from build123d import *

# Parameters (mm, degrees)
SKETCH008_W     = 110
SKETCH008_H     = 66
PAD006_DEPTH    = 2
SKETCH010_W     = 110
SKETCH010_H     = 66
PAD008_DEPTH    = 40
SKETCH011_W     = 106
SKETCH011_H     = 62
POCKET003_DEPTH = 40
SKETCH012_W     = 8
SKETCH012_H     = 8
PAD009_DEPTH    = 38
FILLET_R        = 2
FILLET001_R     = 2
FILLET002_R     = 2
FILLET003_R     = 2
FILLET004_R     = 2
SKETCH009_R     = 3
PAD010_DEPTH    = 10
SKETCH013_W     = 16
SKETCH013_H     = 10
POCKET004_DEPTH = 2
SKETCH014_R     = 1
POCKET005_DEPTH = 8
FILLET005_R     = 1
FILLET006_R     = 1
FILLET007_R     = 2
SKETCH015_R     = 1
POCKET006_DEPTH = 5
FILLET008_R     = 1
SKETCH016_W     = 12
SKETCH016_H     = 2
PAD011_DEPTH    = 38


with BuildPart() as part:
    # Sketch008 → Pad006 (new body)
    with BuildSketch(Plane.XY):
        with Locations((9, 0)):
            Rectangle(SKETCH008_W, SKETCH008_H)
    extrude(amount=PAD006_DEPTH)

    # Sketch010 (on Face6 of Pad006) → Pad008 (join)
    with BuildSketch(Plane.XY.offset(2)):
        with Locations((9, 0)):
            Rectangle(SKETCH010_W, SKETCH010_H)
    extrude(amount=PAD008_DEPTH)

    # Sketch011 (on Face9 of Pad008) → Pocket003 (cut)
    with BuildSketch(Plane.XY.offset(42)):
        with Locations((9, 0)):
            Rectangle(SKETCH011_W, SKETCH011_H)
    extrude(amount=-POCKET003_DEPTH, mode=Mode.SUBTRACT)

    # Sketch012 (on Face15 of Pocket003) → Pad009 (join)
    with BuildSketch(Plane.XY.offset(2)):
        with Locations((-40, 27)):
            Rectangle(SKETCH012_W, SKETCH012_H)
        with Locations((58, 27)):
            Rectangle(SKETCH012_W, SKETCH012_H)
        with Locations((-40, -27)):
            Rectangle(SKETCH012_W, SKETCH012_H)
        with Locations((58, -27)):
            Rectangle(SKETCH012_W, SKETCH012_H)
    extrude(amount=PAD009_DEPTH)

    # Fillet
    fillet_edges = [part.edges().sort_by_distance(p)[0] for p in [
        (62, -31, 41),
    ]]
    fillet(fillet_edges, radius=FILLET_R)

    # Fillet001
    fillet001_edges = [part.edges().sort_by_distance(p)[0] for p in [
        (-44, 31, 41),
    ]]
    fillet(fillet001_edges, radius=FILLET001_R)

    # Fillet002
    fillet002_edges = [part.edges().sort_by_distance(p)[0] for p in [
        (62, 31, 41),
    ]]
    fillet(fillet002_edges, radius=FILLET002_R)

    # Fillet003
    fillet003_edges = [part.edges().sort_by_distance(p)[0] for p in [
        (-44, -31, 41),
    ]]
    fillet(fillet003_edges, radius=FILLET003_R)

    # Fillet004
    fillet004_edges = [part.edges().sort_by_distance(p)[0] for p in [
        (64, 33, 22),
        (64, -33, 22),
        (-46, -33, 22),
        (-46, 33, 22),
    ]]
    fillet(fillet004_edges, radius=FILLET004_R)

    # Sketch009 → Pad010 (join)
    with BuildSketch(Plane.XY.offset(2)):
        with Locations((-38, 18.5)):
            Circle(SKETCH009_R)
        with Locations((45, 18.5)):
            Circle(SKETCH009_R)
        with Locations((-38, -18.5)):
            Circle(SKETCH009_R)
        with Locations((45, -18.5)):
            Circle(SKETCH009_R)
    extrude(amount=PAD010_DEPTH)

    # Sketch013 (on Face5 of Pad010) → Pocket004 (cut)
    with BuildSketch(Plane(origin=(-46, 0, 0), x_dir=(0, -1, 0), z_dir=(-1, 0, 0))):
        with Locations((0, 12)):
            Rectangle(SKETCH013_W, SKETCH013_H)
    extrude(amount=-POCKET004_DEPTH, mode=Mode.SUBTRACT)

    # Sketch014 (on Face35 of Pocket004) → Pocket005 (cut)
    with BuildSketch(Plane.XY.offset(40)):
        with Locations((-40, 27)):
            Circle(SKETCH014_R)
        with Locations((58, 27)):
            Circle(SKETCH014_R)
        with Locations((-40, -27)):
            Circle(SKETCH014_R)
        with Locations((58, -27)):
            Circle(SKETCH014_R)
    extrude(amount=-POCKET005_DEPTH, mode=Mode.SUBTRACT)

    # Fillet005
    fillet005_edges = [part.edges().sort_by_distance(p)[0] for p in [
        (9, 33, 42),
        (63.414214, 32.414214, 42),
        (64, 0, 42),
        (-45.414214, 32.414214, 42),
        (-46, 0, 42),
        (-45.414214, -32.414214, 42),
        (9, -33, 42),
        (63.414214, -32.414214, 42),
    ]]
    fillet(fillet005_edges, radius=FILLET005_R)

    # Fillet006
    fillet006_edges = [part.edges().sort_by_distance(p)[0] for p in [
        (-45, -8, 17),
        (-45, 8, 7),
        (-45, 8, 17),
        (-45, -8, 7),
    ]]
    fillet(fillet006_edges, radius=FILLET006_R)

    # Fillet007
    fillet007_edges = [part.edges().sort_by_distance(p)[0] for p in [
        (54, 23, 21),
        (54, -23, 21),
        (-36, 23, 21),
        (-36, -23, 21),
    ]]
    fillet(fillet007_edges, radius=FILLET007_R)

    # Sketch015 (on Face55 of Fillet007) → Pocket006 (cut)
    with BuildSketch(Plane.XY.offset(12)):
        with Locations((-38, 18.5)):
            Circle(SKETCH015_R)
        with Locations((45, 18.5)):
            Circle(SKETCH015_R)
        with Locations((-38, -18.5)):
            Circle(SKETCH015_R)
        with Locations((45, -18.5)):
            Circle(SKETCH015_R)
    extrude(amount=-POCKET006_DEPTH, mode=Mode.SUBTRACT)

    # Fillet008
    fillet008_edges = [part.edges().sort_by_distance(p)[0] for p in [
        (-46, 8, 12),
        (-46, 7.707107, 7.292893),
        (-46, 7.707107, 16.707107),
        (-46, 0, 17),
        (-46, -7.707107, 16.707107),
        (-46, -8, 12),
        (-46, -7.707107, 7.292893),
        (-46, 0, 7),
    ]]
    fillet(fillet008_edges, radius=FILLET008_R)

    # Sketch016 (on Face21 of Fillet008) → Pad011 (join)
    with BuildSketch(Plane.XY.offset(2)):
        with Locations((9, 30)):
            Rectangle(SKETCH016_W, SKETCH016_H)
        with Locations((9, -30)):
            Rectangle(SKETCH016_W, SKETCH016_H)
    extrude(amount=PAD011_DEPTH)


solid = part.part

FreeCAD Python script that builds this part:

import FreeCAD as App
import Part
import Sketcher


def edges_at(feature, points):
    """Names of the edges that pass closest to the given points."""
    edges = feature.Shape.Edges
    near = lambda p: min(range(len(edges)), key=lambda i: edges[i].distToShape(Part.Vertex(*p))[0])
    return sorted({f"Edge{near(p) + 1}" for p in points})


def add_polygon(sketch, points):
    """Adds a closed chain of lines whose ends are joined by coincident constraints."""
    first, n = sketch.GeometryCount, len(points)
    for a, b in zip(points, points[1:] + points[:1]):
        sketch.addGeometry(Part.LineSegment(App.Vector(*a, 0), App.Vector(*b, 0)), False)
    for i in range(n):
        sketch.addConstraint(Sketcher.Constraint("Coincident", first + i, 2, first + (i + 1) % n, 1))

doc = App.newDocument("Part")
body = doc.addObject("PartDesign::Body", "Body")

sketch1 = body.newObject("Sketcher::SketchObject", "Sketch")
sketch1.AttachmentSupport = (doc.getObject("XY_Plane"), [""])
sketch1.MapMode = "FlatFace"
add_polygon(sketch1, [(-46, 33), (-46, -33), (64, -33), (64, 33)])
sketch1.addConstraint([
    Sketcher.Constraint("Vertical", 0),
    Sketcher.Constraint("Horizontal", 1),
    Sketcher.Constraint("Vertical", 2),
    Sketcher.Constraint("Horizontal", 3),
    Sketcher.Constraint("DistanceX", 1, 1, 1, 2, 110.0),
    Sketcher.Constraint("DistanceY", 0, 2, 0, 1, 66.0),
    Sketcher.Constraint("DistanceX", 0, 2, -1, 1, 46.0),
    Sketcher.Constraint("DistanceY", 0, 2, -1, 1, 33.0),
])
pad1 = body.newObject("PartDesign::Pad", "Pad")
pad1.Profile = sketch1
pad1.Length = 2

sketch2 = body.newObject("Sketcher::SketchObject", "Sketch001")
sketch2.AttachmentSupport = (doc.getObject("XY_Plane"), [""])
sketch2.MapMode = "FlatFace"
sketch2.AttachmentOffset = App.Placement(App.Vector(0, 0, 2), App.Rotation())
add_polygon(sketch2, [(-46, 33), (-46, -33), (64, -33), (64, 33)])
sketch2.addConstraint([
    Sketcher.Constraint("Vertical", 0),
    Sketcher.Constraint("Horizontal", 1),
    Sketcher.Constraint("Vertical", 2),
    Sketcher.Constraint("Horizontal", 3),
    Sketcher.Constraint("DistanceX", 1, 1, 1, 2, 110.0),
    Sketcher.Constraint("DistanceY", 0, 2, 0, 1, 66.0),
    Sketcher.Constraint("DistanceX", 0, 2, -1, 1, 46.0),
    Sketcher.Constraint("DistanceY", 0, 2, -1, 1, 33.0),
])
pad2 = body.newObject("PartDesign::Pad", "Pad001")
pad2.Profile = sketch2
pad2.Length = 40

sketch3 = body.newObject("Sketcher::SketchObject", "Sketch002")
sketch3.AttachmentSupport = (doc.getObject("XY_Plane"), [""])
sketch3.MapMode = "FlatFace"
sketch3.AttachmentOffset = App.Placement(App.Vector(0, 0, 42), App.Rotation())
add_polygon(sketch3, [(-44, 31), (-44, -31), (62, -31), (62, 31)])
sketch3.addConstraint([
    Sketcher.Constraint("Vertical", 0),
    Sketcher.Constraint("Horizontal", 1),
    Sketcher.Constraint("Vertical", 2),
    Sketcher.Constraint("Horizontal", 3),
    Sketcher.Constraint("DistanceX", 1, 1, 1, 2, 106.0),
    Sketcher.Constraint("DistanceY", 0, 2, 0, 1, 62.0),
    Sketcher.Constraint("DistanceX", 0, 2, -1, 1, 44.0),
    Sketcher.Constraint("DistanceY", 0, 2, -1, 1, 31.0),
])
pocket1 = body.newObject("PartDesign::Pocket", "Pocket")
pocket1.Profile = sketch3
pocket1.Length = 40

sketch4 = body.newObject("Sketcher::SketchObject", "Sketch003")
sketch4.AttachmentSupport = (doc.getObject("XY_Plane"), [""])
sketch4.MapMode = "FlatFace"
sketch4.AttachmentOffset = App.Placement(App.Vector(0, 0, 2), App.Rotation())
add_polygon(sketch4, [(-44, 31), (-44, 23), (-36, 23), (-36, 31)])
add_polygon(sketch4, [(54, 31), (54, 23), (62, 23), (62, 31)])
add_polygon(sketch4, [(-44, -23), (-44, -31), (-36, -31), (-36, -23)])
add_polygon(sketch4, [(54, -23), (54, -31), (62, -31), (62, -23)])
sketch4.addConstraint([
    Sketcher.Constraint("Vertical", 0),
    Sketcher.Constraint("Horizontal", 1),
    Sketcher.Constraint("Vertical", 2),
    Sketcher.Constraint("Horizontal", 3),
    Sketcher.Constraint("Vertical", 4),
    Sketcher.Constraint("Horizontal", 5),
    Sketcher.Constraint("Vertical", 6),
    Sketcher.Constraint("Horizontal", 7),
    Sketcher.Constraint("Vertical", 8),
    Sketcher.Constraint("Horizontal", 9),
    Sketcher.Constraint("Vertical", 10),
    Sketcher.Constraint("Horizontal", 11),
    Sketcher.Constraint("Vertical", 12),
    Sketcher.Constraint("Horizontal", 13),
    Sketcher.Constraint("Vertical", 14),
    Sketcher.Constraint("Horizontal", 15),
    Sketcher.Constraint("Symmetric", 3, 2, 8, 2, -1),
    Sketcher.Constraint("Symmetric", 1, 2, 10, 2, -1),
    Sketcher.Constraint("Symmetric", 7, 2, 12, 2, -1),
    Sketcher.Constraint("Symmetric", 5, 2, 14, 2, -1),
    Sketcher.Constraint("Horizontal", 1, 2, 4, 2),
    Sketcher.Constraint("Horizontal", 3, 2, 6, 2),
    Sketcher.Constraint("Equal", 3, 5),
    Sketcher.Constraint("Equal", 15, 0),
    Sketcher.Constraint("DistanceX", 1, 1, 1, 2, 8.0),
    Sketcher.Constraint("DistanceX", 0, 2, -1, 1, 44.0),
    Sketcher.Constraint("DistanceY", -1, 1, 0, 2, 23.0),
    Sketcher.Constraint("DistanceX", -1, 1, 4, 2, 54.0),
])
pad3 = body.newObject("PartDesign::Pad", "Pad002")
pad3.Profile = sketch4
pad3.Length = 38
doc.recompute()

fillet = body.newObject("PartDesign::Fillet", "Fillet")
fillet.Base = (pad3, edges_at(pad3, [(62, -31, 41)]))
fillet.Radius = 2
doc.recompute()

fillet2 = body.newObject("PartDesign::Fillet", "Fillet001")
fillet2.Base = (fillet, edges_at(fillet, [(-44, 31, 41)]))
fillet2.Radius = 2
doc.recompute()

fillet3 = body.newObject("PartDesign::Fillet", "Fillet002")
fillet3.Base = (fillet2, edges_at(fillet2, [(62, 31, 41)]))
fillet3.Radius = 2
doc.recompute()

fillet4 = body.newObject("PartDesign::Fillet", "Fillet003")
fillet4.Base = (fillet3, edges_at(fillet3, [(-44, -31, 41)]))
fillet4.Radius = 2
doc.recompute()

fillet5 = body.newObject("PartDesign::Fillet", "Fillet004")
fillet5.Base = (fillet4, edges_at(fillet4, [
    (64, 33, 21),
    (64, -33, 21),
    (-46, -33, 21),
    (-46, 33, 21),
]))
fillet5.Radius = 2

sketch5 = body.newObject("Sketcher::SketchObject", "Sketch004")
sketch5.AttachmentSupport = (doc.getObject("XY_Plane"), [""])
sketch5.MapMode = "FlatFace"
sketch5.AttachmentOffset = App.Placement(App.Vector(0, 0, 2), App.Rotation())
sketch5.addGeometry([
    Part.Circle(App.Vector(-38, 18.5, 0), App.Vector(0, 0, 1), 3),
    Part.Circle(App.Vector(45, 18.5, 0), App.Vector(0, 0, 1), 3),
    Part.Circle(App.Vector(-38, -18.5, 0), App.Vector(0, 0, 1), 3),
    Part.Circle(App.Vector(45, -18.5, 0), App.Vector(0, 0, 1), 3),
], False)
sketch5.addConstraint([
    Sketcher.Constraint("Equal", 0, 1),
    Sketcher.Constraint("Equal", 1, 2),
    Sketcher.Constraint("Equal", 2, 3),
    Sketcher.Constraint("Symmetric", 0, 3, 2, 3, -1),
    Sketcher.Constraint("Symmetric", 1, 3, 3, 3, -1),
    Sketcher.Constraint("Horizontal", 0, 3, 1, 3),
    Sketcher.Constraint("Diameter", 0, 6.0),
    Sketcher.Constraint("DistanceX", 0, 3, -1, 1, 38.0),
    Sketcher.Constraint("DistanceX", -1, 1, 1, 3, 45.0),
    Sketcher.Constraint("DistanceY", 2, 3, 0, 3, 37.0),
])
pad4 = body.newObject("PartDesign::Pad", "Pad003")
pad4.Profile = sketch5
pad4.Length = 10

sketch6 = body.newObject("Sketcher::SketchObject", "Sketch005")
sketch6.AttachmentSupport = (doc.getObject("YZ_Plane"), [""])
sketch6.MapMode = "FlatFace"
sketch6.AttachmentOffset = App.Placement(App.Vector(0, 0, -46), App.Rotation())
add_polygon(sketch6, [(8, 17), (8, 7), (-8, 7), (-8, 17)])
sketch6.addConstraint([
    Sketcher.Constraint("Vertical", 0),
    Sketcher.Constraint("Horizontal", 1),
    Sketcher.Constraint("Vertical", 2),
    Sketcher.Constraint("Horizontal", 3),
    Sketcher.Constraint("DistanceX", 1, 2, 1, 1, 16.0),
    Sketcher.Constraint("DistanceY", 0, 2, 0, 1, 10.0),
    Sketcher.Constraint("DistanceX", -1, 1, 0, 2, 8.0),
    Sketcher.Constraint("DistanceY", -1, 1, 0, 2, 7.0),
])
pocket2 = body.newObject("PartDesign::Pocket", "Pocket001")
pocket2.Profile = sketch6
pocket2.Length = 2
pocket2.Reversed = True

sketch7 = body.newObject("Sketcher::SketchObject", "Sketch006")
sketch7.AttachmentSupport = (doc.getObject("XY_Plane"), [""])
sketch7.MapMode = "FlatFace"
sketch7.AttachmentOffset = App.Placement(App.Vector(0, 0, 40), App.Rotation())
sketch7.addGeometry([
    Part.Circle(App.Vector(-40, 27, 0), App.Vector(0, 0, 1), 1),
    Part.Circle(App.Vector(58, 27, 0), App.Vector(0, 0, 1), 1),
    Part.Circle(App.Vector(-40, -27, 0), App.Vector(0, 0, 1), 1),
    Part.Circle(App.Vector(58, -27, 0), App.Vector(0, 0, 1), 1),
], False)
sketch7.addConstraint([
    Sketcher.Constraint("Equal", 0, 1),
    Sketcher.Constraint("Equal", 1, 2),
    Sketcher.Constraint("Equal", 2, 3),
    Sketcher.Constraint("Symmetric", 0, 3, 2, 3, -1),
    Sketcher.Constraint("Symmetric", 1, 3, 3, 3, -1),
    Sketcher.Constraint("Horizontal", 0, 3, 1, 3),
    Sketcher.Constraint("Diameter", 0, 2.0),
    Sketcher.Constraint("DistanceX", 0, 3, -1, 1, 40.0),
    Sketcher.Constraint("DistanceY", -1, 1, 0, 3, 27.0),
    Sketcher.Constraint("DistanceX", -1, 1, 1, 3, 58.0),
])
pocket3 = body.newObject("PartDesign::Pocket", "Pocket002")
pocket3.Profile = sketch7
pocket3.Length = 8
doc.recompute()

fillet6 = body.newObject("PartDesign::Fillet", "Fillet005")
fillet6.Base = (pocket3, edges_at(pocket3, [
    (9, 33, 42),
    (63.414, 32.414, 42),
    (64, 0, 42),
    (-45.414, 32.414, 42),
    (-46, 0, 42),
    (-45.414, -32.414, 42),
    (9, -33, 42),
    (63.414, -32.414, 42),
]))
fillet6.Radius = 1
doc.recompute()

fillet7 = body.newObject("PartDesign::Fillet", "Fillet006")
fillet7.Base = (fillet6, edges_at(fillet6, [
    (-45, -8, 17),
    (-45, 8, 7),
    (-45, 8, 17),
    (-45, -8, 7),
]))
fillet7.Radius = 1
doc.recompute()

fillet8 = body.newObject("PartDesign::Fillet", "Fillet007")
fillet8.Base = (fillet7, edges_at(fillet7, [
    (54, 23, 21),
    (54, -23, 21),
    (-36, 23, 21),
    (-36, -23, 21),
]))
fillet8.Radius = 2

sketch8 = body.newObject("Sketcher::SketchObject", "Sketch007")
sketch8.AttachmentSupport = (doc.getObject("XY_Plane"), [""])
sketch8.MapMode = "FlatFace"
sketch8.AttachmentOffset = App.Placement(App.Vector(0, 0, 12), App.Rotation())
sketch8.addGeometry([
    Part.Circle(App.Vector(-38, 18.5, 0), App.Vector(0, 0, 1), 1),
    Part.Circle(App.Vector(45, 18.5, 0), App.Vector(0, 0, 1), 1),
    Part.Circle(App.Vector(-38, -18.5, 0), App.Vector(0, 0, 1), 1),
    Part.Circle(App.Vector(45, -18.5, 0), App.Vector(0, 0, 1), 1),
], False)
sketch8.addConstraint([
    Sketcher.Constraint("Equal", 0, 1),
    Sketcher.Constraint("Equal", 1, 2),
    Sketcher.Constraint("Equal", 2, 3),
    Sketcher.Constraint("Symmetric", 0, 3, 2, 3, -1),
    Sketcher.Constraint("Symmetric", 1, 3, 3, 3, -1),
    Sketcher.Constraint("Horizontal", 0, 3, 1, 3),
    Sketcher.Constraint("Diameter", 0, 2.0),
    Sketcher.Constraint("DistanceX", 0, 3, -1, 1, 38.0),
    Sketcher.Constraint("DistanceX", -1, 1, 1, 3, 45.0),
    Sketcher.Constraint("DistanceY", 2, 3, 0, 3, 37.0),
])
pocket4 = body.newObject("PartDesign::Pocket", "Pocket003")
pocket4.Profile = sketch8
pocket4.Length = 5
doc.recompute()

fillet9 = body.newObject("PartDesign::Fillet", "Fillet008")
fillet9.Base = (pocket4, edges_at(pocket4, [
    (-46, 8, 12),
    (-46, 7.707, 7.293),
    (-46, 7.707, 16.707),
    (-46, 0, 17),
    (-46, -7.707, 16.707),
    (-46, -8, 12),
    (-46, -7.707, 7.293),
    (-46, 0, 7),
]))
fillet9.Radius = 1

sketch9 = body.newObject("Sketcher::SketchObject", "Sketch008")
sketch9.AttachmentSupport = (doc.getObject("XY_Plane"), [""])
sketch9.MapMode = "FlatFace"
sketch9.AttachmentOffset = App.Placement(App.Vector(0, 0, 2), App.Rotation())
add_polygon(sketch9, [(3, 31), (3, 29), (15, 29), (15, 31)])
add_polygon(sketch9, [(3, -29), (3, -31), (15, -31), (15, -29)])
sketch9.addConstraint([
    Sketcher.Constraint("Vertical", 0),
    Sketcher.Constraint("Horizontal", 1),
    Sketcher.Constraint("Vertical", 2),
    Sketcher.Constraint("Horizontal", 3),
    Sketcher.Constraint("Vertical", 4),
    Sketcher.Constraint("Horizontal", 5),
    Sketcher.Constraint("Vertical", 6),
    Sketcher.Constraint("Horizontal", 7),
    Sketcher.Constraint("Symmetric", 3, 2, 4, 2, -1),
    Sketcher.Constraint("Symmetric", 1, 2, 6, 2, -1),
    Sketcher.Constraint("DistanceX", 1, 1, 1, 2, 12.0),
    Sketcher.Constraint("DistanceY", 0, 2, 0, 1, 2.0),
    Sketcher.Constraint("DistanceX", -1, 1, 0, 2, 3.0),
    Sketcher.Constraint("DistanceY", -1, 1, 0, 2, 29.0),
])
pad5 = body.newObject("PartDesign::Pad", "Pad004")
pad5.Profile = sketch9
pad5.Length = 38

doc.recompute()
